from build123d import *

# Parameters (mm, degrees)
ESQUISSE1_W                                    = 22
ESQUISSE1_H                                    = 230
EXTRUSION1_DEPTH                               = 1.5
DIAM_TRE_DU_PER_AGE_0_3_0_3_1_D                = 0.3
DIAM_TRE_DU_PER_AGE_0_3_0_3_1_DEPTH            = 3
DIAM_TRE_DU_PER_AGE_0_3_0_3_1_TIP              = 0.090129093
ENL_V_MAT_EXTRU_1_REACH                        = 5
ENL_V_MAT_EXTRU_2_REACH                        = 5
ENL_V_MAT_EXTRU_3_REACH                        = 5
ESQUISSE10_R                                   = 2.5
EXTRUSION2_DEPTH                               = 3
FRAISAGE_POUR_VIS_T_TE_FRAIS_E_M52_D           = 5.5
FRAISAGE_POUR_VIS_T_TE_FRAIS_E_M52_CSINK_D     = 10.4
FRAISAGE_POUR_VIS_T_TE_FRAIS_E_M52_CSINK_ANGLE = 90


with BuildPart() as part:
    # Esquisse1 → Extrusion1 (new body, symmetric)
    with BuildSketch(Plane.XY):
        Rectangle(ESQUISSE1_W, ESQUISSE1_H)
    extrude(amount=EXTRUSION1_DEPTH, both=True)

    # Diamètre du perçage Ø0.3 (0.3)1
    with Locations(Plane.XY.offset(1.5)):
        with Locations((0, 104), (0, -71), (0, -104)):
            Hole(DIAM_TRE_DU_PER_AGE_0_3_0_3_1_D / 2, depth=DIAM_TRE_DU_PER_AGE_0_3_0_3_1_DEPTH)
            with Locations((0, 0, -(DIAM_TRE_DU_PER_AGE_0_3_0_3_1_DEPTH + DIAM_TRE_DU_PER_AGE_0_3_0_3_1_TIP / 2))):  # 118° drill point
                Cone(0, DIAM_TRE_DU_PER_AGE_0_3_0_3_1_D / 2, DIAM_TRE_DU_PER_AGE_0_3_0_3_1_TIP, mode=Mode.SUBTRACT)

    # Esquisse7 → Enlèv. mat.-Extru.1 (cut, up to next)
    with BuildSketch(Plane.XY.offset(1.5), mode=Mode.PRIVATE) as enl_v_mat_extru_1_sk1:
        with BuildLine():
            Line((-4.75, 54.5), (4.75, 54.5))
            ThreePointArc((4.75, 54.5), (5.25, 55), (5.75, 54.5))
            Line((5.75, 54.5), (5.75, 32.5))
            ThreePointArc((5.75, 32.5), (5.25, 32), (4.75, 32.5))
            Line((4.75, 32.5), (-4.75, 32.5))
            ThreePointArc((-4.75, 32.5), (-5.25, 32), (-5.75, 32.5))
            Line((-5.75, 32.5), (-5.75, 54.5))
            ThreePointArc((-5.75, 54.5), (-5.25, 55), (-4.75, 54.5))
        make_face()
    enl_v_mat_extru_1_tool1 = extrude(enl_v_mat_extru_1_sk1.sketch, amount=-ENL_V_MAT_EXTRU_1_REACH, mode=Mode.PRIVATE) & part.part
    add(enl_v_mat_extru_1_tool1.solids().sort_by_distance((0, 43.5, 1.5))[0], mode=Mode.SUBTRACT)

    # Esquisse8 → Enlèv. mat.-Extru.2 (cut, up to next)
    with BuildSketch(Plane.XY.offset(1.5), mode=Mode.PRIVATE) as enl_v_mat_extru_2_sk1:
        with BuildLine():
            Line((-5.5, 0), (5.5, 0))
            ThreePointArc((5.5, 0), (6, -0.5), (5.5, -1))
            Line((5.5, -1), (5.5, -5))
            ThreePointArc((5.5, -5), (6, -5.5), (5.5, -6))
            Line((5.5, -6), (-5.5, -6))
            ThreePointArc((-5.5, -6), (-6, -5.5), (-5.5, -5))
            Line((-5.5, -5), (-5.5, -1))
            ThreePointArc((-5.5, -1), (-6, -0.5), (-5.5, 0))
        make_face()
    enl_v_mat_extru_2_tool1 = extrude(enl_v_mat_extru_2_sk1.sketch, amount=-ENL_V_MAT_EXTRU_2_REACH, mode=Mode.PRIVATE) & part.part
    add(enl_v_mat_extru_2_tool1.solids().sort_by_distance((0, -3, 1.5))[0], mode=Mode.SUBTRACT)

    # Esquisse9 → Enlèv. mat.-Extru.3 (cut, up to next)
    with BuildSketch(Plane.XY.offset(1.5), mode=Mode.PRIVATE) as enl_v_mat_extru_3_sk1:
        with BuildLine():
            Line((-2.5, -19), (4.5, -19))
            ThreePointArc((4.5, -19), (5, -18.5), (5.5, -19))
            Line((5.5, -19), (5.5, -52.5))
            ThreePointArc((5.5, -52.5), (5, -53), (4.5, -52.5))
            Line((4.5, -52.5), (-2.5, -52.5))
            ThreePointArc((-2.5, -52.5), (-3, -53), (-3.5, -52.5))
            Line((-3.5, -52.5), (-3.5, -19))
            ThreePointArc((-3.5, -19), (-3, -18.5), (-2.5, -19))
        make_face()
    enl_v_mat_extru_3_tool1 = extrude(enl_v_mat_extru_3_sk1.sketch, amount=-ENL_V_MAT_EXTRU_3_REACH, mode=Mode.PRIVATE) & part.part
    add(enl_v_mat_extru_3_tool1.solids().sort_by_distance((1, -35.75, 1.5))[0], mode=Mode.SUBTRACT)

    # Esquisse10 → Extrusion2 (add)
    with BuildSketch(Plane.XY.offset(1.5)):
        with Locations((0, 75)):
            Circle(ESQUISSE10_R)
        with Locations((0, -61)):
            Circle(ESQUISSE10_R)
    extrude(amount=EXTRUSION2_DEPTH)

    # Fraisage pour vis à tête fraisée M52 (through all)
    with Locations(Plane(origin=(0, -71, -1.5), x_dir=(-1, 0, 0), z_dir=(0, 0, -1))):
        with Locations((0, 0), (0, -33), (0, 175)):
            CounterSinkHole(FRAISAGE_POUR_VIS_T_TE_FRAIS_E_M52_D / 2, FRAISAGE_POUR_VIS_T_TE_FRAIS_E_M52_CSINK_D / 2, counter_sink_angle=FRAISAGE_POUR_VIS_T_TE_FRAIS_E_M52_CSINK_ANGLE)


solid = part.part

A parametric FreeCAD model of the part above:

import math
import FreeCAD as App
import Part
import Sketcher
from FreeCAD import Vector
Q = App.Units.Quantity

doc = App.newDocument("Part")
params = doc.addObject("Spreadsheet::Sheet", "Params")
for row, (alias, value) in enumerate([
    ("sketch1_width", "22 mm"),
    ("sketch1_height", "230 mm"),
    ("pad1_length", "3 mm"),
    ("sketch2_diameter", "0.3 mm"),
    ("hole_diameter", "0.3 mm"),
    ("hole_depth", "3 mm"),
    ("sketch3_radius", "0.5 mm"),
    ("sketch3_height", "22 mm"),
    ("sketch3_width", "9.5 mm"),
    ("sketch4_radius", "0.5 mm"),
    ("sketch4_width", "11 mm"),
    ("sketch4_height", "4 mm"),
    ("sketch5_radius", "0.5 mm"),
    ("sketch5_width", "7 mm"),
    ("sketch5_height", "33.5 mm"),
    ("sketch6_diameter", "5 mm"),
    ("pad2_length", "3 mm"),
    ("sketch7_diameter", "5.5 mm"),
    ("hole2_diameter", "5.5 mm"),
    ("hole2_csink_diameter", "10.4 mm"),
], start=1):
    params.set(f"A{row}", alias)
    params.set(f"B{row}", "=" + value)
    params.setAlias(f"B{row}", alias)

body = doc.addObject("PartDesign::Body", "Body")

# Sketch on XY plane
sketch1 = body.newObject("Sketcher::SketchObject", "Sketch")
sketch1.AttachmentSupport = (doc.getObject("XY_Plane"), [""])
sketch1.MapMode = "FlatFace"
sketch1.addGeometry(Part.LineSegment(Vector(-11, 115, 0), Vector(-11, -115, 0)), False)
sketch1.addGeometry(Part.LineSegment(Vector(-11, -115, 0), Vector(11, -115, 0)), False)
sketch1.addGeometry(Part.LineSegment(Vector(11, -115, 0), Vector(11, 115, 0)), False)
sketch1.addGeometry(Part.LineSegment(Vector(11, 115, 0), Vector(-11, 115, 0)), False)
sketch1.addConstraint(Sketcher.Constraint("Coincident", 0, 2, 1, 1))
sketch1.addConstraint(Sketcher.Constraint("Coincident", 1, 2, 2, 1))
sketch1.addConstraint(Sketcher.Constraint("Coincident", 2, 2, 3, 1))
sketch1.addConstraint(Sketcher.Constraint("Coincident", 3, 2, 0, 1))
sketch1.addConstraint(Sketcher.Constraint("Vertical", 0))
sketch1.addConstraint(Sketcher.Constraint("Horizontal", 1))
sketch1.addConstraint(Sketcher.Constraint("Vertical", 2))
sketch1.addConstraint(Sketcher.Constraint("Horizontal", 3))
sketch1.addConstraint(Sketcher.Constraint("Symmetric", 0, 2, 2, 2, -1, 1))
sketch1.addConstraint(Sketcher.Constraint("DistanceX", 1, 1, 1, 2, Q("22 mm")))
sketch1.addConstraint(Sketcher.Constraint("DistanceY", 0, 2, 0, 1, Q("230 mm")))
sketch1.setExpression("Constraints[9]", "Params.sketch1_width")
sketch1.setExpression("Constraints[10]", "Params.sketch1_height")
pad1 = body.newObject("PartDesign::Pad", "Pad")
pad1.Profile = sketch1
pad1.setExpression("Length", "Params.pad1_length")
pad1.Midplane = True

# Sketch on XY plane
sketch2 = body.newObject("Sketcher::SketchObject", "Sketch001")
sketch2.AttachmentSupport = (doc.getObject("XY_Plane"), [""])
sketch2.MapMode = "FlatFace"
sketch2.AttachmentOffset = App.Placement(Vector(0, 0, 1.5), App.Rotation())
sketch2.addGeometry(Part.Circle(Vector(0, 104, 0), Vector(0, 0, 1), 0.15), False)
sketch2.addGeometry(Part.Circle(Vector(0, -71, 0), Vector(0, 0, 1), 0.15), False)
sketch2.addGeometry(Part.Circle(Vector(0, -104, 0), Vector(0, 0, 1), 0.15), False)
sketch2.addConstraint(Sketcher.Constraint("Equal", 0, 1))
sketch2.addConstraint(Sketcher.Constraint("Equal", 1, 2))
sketch2.addConstraint(Sketcher.Constraint("Symmetric", 0, 3, 2, 3, -1, 1))
sketch2.addConstraint(Sketcher.Constraint("PointOnObject", 0, 3, -2))
sketch2.addConstraint(Sketcher.Constraint("PointOnObject", 1, 3, -2))
sketch2.addConstraint(Sketcher.Constraint("Diameter", 0, Q("0.3 mm")))
sketch2.addConstraint(Sketcher.Constraint("DistanceY", -1, 1, 0, 3, Q("104 mm")))
sketch2.addConstraint(Sketcher.Constraint("DistanceY", 1, 3, -1, 1, Q("71 mm")))
sketch2.setExpression("Constraints[5]", "Params.sketch2_diameter")
doc.recompute()
hole = body.newObject("PartDesign::Hole", "Hole")
hole.Profile = sketch2
hole.ThreadType = "None"
hole.setExpression("Diameter", "Params.hole_diameter")
hole.DepthType = "Dimension"
hole.setExpression("Depth", "Params.hole_depth")
hole.DrillPoint = "Angled"
hole.DrillPointAngle = 118

# Sketch on XY plane
sketch3 = body.newObject("Sketcher::SketchObject", "Sketch002")
sketch3.AttachmentSupport = (doc.getObject("XY_Plane"), [""])
sketch3.MapMode = "FlatFace"
sketch3.AttachmentOffset = App.Placement(Vector(0, 0, 1.5), App.Rotation())
sketch3.addGeometry(Part.LineSegment(Vector(4.8, 54.5, 0), Vector(-4.8, 54.5, 0)), False)
sketch3.addGeometry(Part.ArcOfCircle(Part.Circle(Vector(-5.2, 54.5, 0), Vector(0, 0, 1), 0.5), math.radians(0), math.radians(180)), False)
sketch3.addGeometry(Part.LineSegment(Vector(-5.8, 54.5, 0), Vector(-5.8, 32.5, 0)), False)
sketch3.addGeometry(Part.ArcOfCircle(Part.Circle(Vector(-5.2, 32.5, 0), Vector(0, 0, 1), 0.5), math.radians(180), math.radians(360)), False)
sketch3.addGeometry(Part.LineSegment(Vector(-4.8, 32.5, 0), Vector(4.8, 32.5, 0)), False)
sketch3.addGeometry(Part.ArcOfCircle(Part.Circle(Vector(5.2, 32.5, 0), Vector(0, 0, 1), 0.5), math.radians(180), math.radians(360)), False)
sketch3.addGeometry(Part.LineSegment(Vector(5.8, 32.5, 0), Vector(5.8, 54.5, 0)), False)
sketch3.addGeometry(Part.ArcOfCircle(Part.Circle(Vector(5.2, 54.5, 0), Vector(0, 0, 1), 0.5), math.radians(0), math.radians(180)), False)
sketch3.addConstraint(Sketcher.Constraint("Coincident", 0, 2, 1, 1))
sketch3.addConstraint(Sketcher.Constraint("Tangent", 1, 2, 2, 1))
sketch3.addConstraint(Sketcher.Constraint("Tangent", 2, 2, 3, 1))
sketch3.addConstraint(Sketcher.Constraint("Coincident", 3, 2, 4, 1))
sketch3.addConstraint(Sketcher.Constraint("Coincident", 4, 2, 5, 1))
sketch3.addConstraint(Sketcher.Constraint("Tangent", 5, 2, 6, 1))
sketch3.addConstraint(Sketcher.Constraint("Tangent", 6, 2, 7, 1))
sketch3.addConstraint(Sketcher.Constraint("Coincident", 7, 2, 0, 1))
sketch3.addConstraint(Sketcher.Constraint("Horizontal", 0))
sketch3.addConstraint(Sketcher.Constraint("Vertical", 2))
sketch3.addConstraint(Sketcher.Constraint("Horizontal", 4))
sketch3.addConstraint(Sketcher.Constraint("Vertical", 6))
sketch3.addConstraint(Sketcher.Constraint("Equal", 1, 3))
sketch3.addConstraint(Sketcher.Constraint("Equal", 3, 5))
sketch3.addConstraint(Sketcher.Constraint("Equal", 5, 7))
sketch3.addConstraint(Sketcher.Constraint("Symmetric", 3, 3, 5, 3, -2))
sketch3.addConstraint(Sketcher.Constraint("Horizontal", 1, 3, 7, 3))
sketch3.addConstraint(Sketcher.Constraint("Horizontal", 7, 3, 0, 2))
sketch3.addConstraint(Sketcher.Constraint("Horizontal", 2, 2, 3, 2))
sketch3.addConstraint(Sketcher.Constraint("Radius", 1, Q("0.5 mm")))
sketch3.addConstraint(Sketcher.Constraint("DistanceY", 2, 2, 2, 1, Q("22 mm")))
sketch3.addConstraint(Sketcher.Constraint("DistanceX", 0, 2, 0, 1, Q("9.5 mm")))
sketch3.addConstraint(Sketcher.Constraint("DistanceY", -1, 1, 1, 3, Q("54.5 mm")))
sketch3.setExpression("Constraints[19]", "Params.sketch3_radius")
sketch3.setExpression("Constraints[20]", "Params.sketch3_height")
sketch3.setExpression("Constraints[21]", "Params.sketch3_width")
pocket1 = body.newObject("PartDesign::Pocket", "Pocket")
pocket1.Profile = sketch3
pocket1.Type = "UpToFirst"

# Sketch on XY plane
sketch4 = body.newObject("Sketcher::SketchObject", "Sketch003")
sketch4.AttachmentSupport = (doc.getObject("XY_Plane"), [""])
sketch4.MapMode = "FlatFace"
sketch4.AttachmentOffset = App.Placement(Vector(0, 0, 1.5), App.Rotation())
sketch4.addGeometry(Part.LineSegment(Vector(5.5, 0, 0), Vector(-5.5, 0, 0)), False)
sketch4.addGeometry(Part.ArcOfCircle(Part.Circle(Vector(-5.5, -0.5, 0), Vector(0, 0, 1), 0.5), math.radians(90), math.radians(270)), False)
sketch4.addGeometry(Part.LineSegment(Vector(-5.5, -1, 0), Vector(-5.5, -5, 0)), False)
sketch4.addGeometry(Part.ArcOfCircle(Part.Circle(Vector(-5.5, -5.5, 0), Vector(0, 0, 1), 0.5), math.radians(90), math.radians(270)), False)
sketch4.addGeometry(Part.LineSegment(Vector(-5.5, -6, 0), Vector(5.5, -6, 0)), False)
sketch4.addGeometry(Part.ArcOfCircle(Part.Circle(Vector(5.5, -5.5, 0), Vector(0, 0, 1), 0.5), math.radians(-90), math.radians(90)), False)
sketch4.addGeometry(Part.LineSegment(Vector(5.5, -5, 0), Vector(5.5, -1, 0)), False)
sketch4.addGeometry(Part.ArcOfCircle(Part.Circle(Vector(5.5, -0.5, 0), Vector(0, 0, 1), 0.5), math.radians(-90), math.radians(90)), False)
sketch4.addConstraint(Sketcher.Constraint("Tangent", 0, 2, 1, 1))
sketch4.addConstraint(Sketcher.Constraint("Coincident", 1, 2, 2, 1))
sketch4.addConstraint(Sketcher.Constraint("Coincident", 2, 2, 3, 1))
sketch4.addConstraint(Sketcher.Constraint("Tangent", 3, 2, 4, 1))
sketch4.addConstraint(Sketcher.Constraint("Tangent", 4, 2, 5, 1))
sketch4.addConstraint(Sketcher.Constraint("Coincident", 5, 2, 6, 1))
sketch4.addConstraint(Sketcher.Constraint("Coincident", 6, 2, 7, 1))
sketch4.addConstraint(Sketcher.Constraint("Tangent", 7, 2, 0, 1))
sketch4.addConstraint(Sketcher.Constraint("Horizontal", 0))
sketch4.addConstraint(Sketcher.Constraint("Vertical", 2))
sketch4.addConstraint(Sketcher.Constraint("Horizontal", 4))
sketch4.addConstraint(Sketcher.Constraint("Vertical", 6))
sketch4.addConstraint(Sketcher.Constraint("Equal", 1, 3))
sketch4.addConstraint(Sketcher.Constraint("Equal", 3, 5))
sketch4.addConstraint(Sketcher.Constraint("Equal", 5, 7))
sketch4.addConstraint(Sketcher.Constraint("Symmetric", 0, 2, 7, 2, -1, 1))
sketch4.addConstraint(Sketcher.Constraint("Vertical", 1, 3, 3, 3))
sketch4.addConstraint(Sketcher.Constraint("Vertical", 5, 3, 7, 3))
sketch4.addConstraint(Sketcher.Constraint("Vertical", 0, 2, 1, 2))
sketch4.addConstraint(Sketcher.Constraint("Vertical", 4, 2, 5, 2))
sketch4.addConstraint(Sketcher.Constraint("Radius", 1, Q("0.5 mm")))
sketch4.addConstraint(Sketcher.Constraint("DistanceX", 0, 2, 0, 1, Q("11 mm")))
sketch4.addConstraint(Sketcher.Constraint("DistanceY", 2, 2, 2, 1, Q("4 mm")))
sketch4.setExpression("Constraints[20]", "Params.sketch4_radius")
sketch4.setExpression("Constraints[21]", "Params.sketch4_width")
sketch4.setExpression("Constraints[22]", "Params.sketch4_height")
pocket2 = body.newObject("PartDesign::Pocket", "Pocket001")
pocket2.Profile = sketch4
pocket2.Type = "UpToFirst"

# Sketch on XY plane
sketch5 = body.newObject("Sketcher::SketchObject", "Sketch004")
sketch5.AttachmentSupport = (doc.getObject("XY_Plane"), [""])
sketch5.MapMode = "FlatFace"
sketch5.AttachmentOffset = App.Placement(Vector(0, 0, 1.5), App.Rotation())
sketch5.addGeometry(Part.LineSegment(Vector(4.5, -19, 0), Vector(-2.5, -19, 0)), False)
sketch5.addGeometry(Part.ArcOfCircle(Part.Circle(Vector(-3, -19, 0), Vector(0, 0, 1), 0.5), math.radians(0), math.radians(180)), False)
sketch5.addGeometry(Part.LineSegment(Vector(-3.5, -19, 0), Vector(-3.5, -52.5, 0)), False)
sketch5.addGeometry(Part.ArcOfCircle(Part.Circle(Vector(-3, -52.5, 0), Vector(0, 0, 1), 0.5), math.radians(180), math.radians(360)), False)
sketch5.addGeometry(Part.LineSegment(Vector(-2.5, -52.5, 0), Vector(4.5, -52.5, 0)), False)
sketch5.addGeometry(Part.ArcOfCircle(Part.Circle(Vector(5, -52.5, 0), Vector(0, 0, 1), 0.5), math.radians(180), math.radians(360)), False)
sketch5.addGeometry(Part.LineSegment(Vector(5.5, -52.5, 0), Vector(5.5, -19, 0)), False)
sketch5.addGeometry(Part.ArcOfCircle(Part.Circle(Vector(5, -19, 0), Vector(0, 0, 1), 0.5), math.radians(0), math.radians(180)), False)
sketch5.addConstraint(Sketcher.Constraint("Coincident", 0, 2, 1, 1))
sketch5.addConstraint(Sketcher.Constraint("Tangent", 1, 2, 2, 1))
sketch5.addConstraint(Sketcher.Constraint("Tangent", 2, 2, 3, 1))
sketch5.addConstraint(Sketcher.Constraint("Coincident", 3, 2, 4, 1))
sketch5.addConstraint(Sketcher.Constraint("Coincident", 4, 2, 5, 1))
sketch5.addConstraint(Sketcher.Constraint("Tangent", 5, 2, 6, 1))
sketch5.addConstraint(Sketcher.Constraint("Tangent", 6, 2, 7, 1))
sketch5.addConstraint(Sketcher.Constraint("Coincident", 7, 2, 0, 1))
sketch5.addConstraint(Sketcher.Constraint("Horizontal", 0))
sketch5.addConstraint(Sketcher.Constraint("Vertical", 2))
sketch5.addConstraint(Sketcher.Constraint("Horizontal", 4))
sketch5.addConstraint(Sketcher.Constraint("Vertical", 6))
sketch5.addConstraint(Sketcher.Constraint("Equal", 1, 3))
sketch5.addConstraint(Sketcher.Constraint("Equal", 3, 5))
sketch5.addConstraint(Sketcher.Constraint("Equal", 5, 7))
sketch5.addConstraint(Sketcher.Constraint("Horizontal", 3, 3, 5, 3))
sketch5.addConstraint(Sketcher.Constraint("Horizontal", 1, 3, 7, 3))
sketch5.addConstraint(Sketcher.Constraint("Horizontal", 7, 3, 0, 2))
sketch5.addConstraint(Sketcher.Constraint("Horizontal", 2, 2, 3, 2))
sketch5.addConstraint(Sketcher.Constraint("Radius", 1, Q("0.5 mm")))
sketch5.addConstraint(Sketcher.Constraint("DistanceX", 0, 2, 0, 1, Q("7 mm")))
sketch5.addConstraint(Sketcher.Constraint("DistanceY", 2, 2, 2, 1, Q("33.5 mm")))
sketch5.addConstraint(Sketcher.Constraint("DistanceX", 1, 3, -1, 1, Q("3 mm")))
sketch5.addConstraint(Sketcher.Constraint("DistanceY", 1, 3, -1, 1, Q("19 mm")))
sketch5.setExpression("Constraints[19]", "Params.sketch5_radius")
sketch5.setExpression("Constraints[20]", "Params.sketch5_width")
sketch5.setExpression("Constraints[21]", "Params.sketch5_height")
pocket3 = body.newObject("PartDesign::Pocket", "Pocket002")
pocket3.Profile = sketch5
pocket3.Type = "UpToFirst"

# Sketch on XY plane
sketch6 = body.newObject("Sketcher::SketchObject", "Sketch005")
sketch6.AttachmentSupport = (doc.getObject("XY_Plane"), [""])
sketch6.MapMode = "FlatFace"
sketch6.AttachmentOffset = App.Placement(Vector(0, 0, 1.5), App.Rotation())
sketch6.addGeometry(Part.Circle(Vector(0, 75, 0), Vector(0, 0, 1), 2.5), False)
sketch6.addGeometry(Part.Circle(Vector(0, -61, 0), Vector(0, 0, 1), 2.5), False)
sketch6.addConstraint(Sketcher.Constraint("Equal", 0, 1))
sketch6.addConstraint(Sketcher.Constraint("PointOnObject", 0, 3, -2))
sketch6.addConstraint(Sketcher.Constraint("PointOnObject", 1, 3, -2))
sketch6.addConstraint(Sketcher.Constraint("Diameter", 0, Q("5 mm")))
sketch6.addConstraint(Sketcher.Constraint("DistanceY", -1, 1, 0, 3, Q("75 mm")))
sketch6.addConstraint(Sketcher.Constraint("DistanceY", 1, 3, -1, 1, Q("61 mm")))
sketch6.setExpression("Constraints[3]", "Params.sketch6_diameter")
pad2 = body.newObject("PartDesign::Pad", "Pad001")
pad2.Profile = sketch6
pad2.setExpression("Length", "Params.pad2_length")

# Sketch on XY plane
sketch7 = body.newObject("Sketcher::SketchObject", "Sketch006")
sketch7.AttachmentSupport = (doc.getObject("XY_Plane"), [""])
sketch7.MapMode = "FlatFace"
sketch7.AttachmentOffset = App.Placement(Vector(0, 0, -1.5), App.Rotation())
sketch7.addGeometry(Part.Circle(Vector(0, -71, 0), Vector(0, 0, 1), 2.8), False)
sketch7.addGeometry(Part.Circle(Vector(0, -104, 0), Vector(0, 0, 1), 2.8), False)
sketch7.addGeometry(Part.Circle(Vector(0, 104, 0), Vector(0, 0, 1), 2.8), False)
sketch7.addConstraint(Sketcher.Constraint("Equal", 0, 1))
sketch7.addConstraint(Sketcher.Constraint("Equal", 1, 2))
sketch7.addConstraint(Sketcher.Constraint("Symmetric", 1, 3, 2, 3, -1, 1))
sketch7.addConstraint(Sketcher.Constraint("PointOnObject", 0, 3, -2))
sketch7.addConstraint(Sketcher.Constraint("PointOnObject", 1, 3, -2))
sketch7.addConstraint(Sketcher.Constraint("Diameter", 0, Q("5.5 mm")))
sketch7.addConstraint(Sketcher.Constraint("DistanceY", 0, 3, -1, 1, Q("71 mm")))
sketch7.addConstraint(Sketcher.Constraint("DistanceY", 1, 3, -1, 1, Q("104 mm")))
sketch7.setExpression("Constraints[5]", "Params.sketch7_diameter")
doc.recompute()
hole2 = body.newObject("PartDesign::Hole", "Hole001")
hole2.Profile = sketch7
hole2.ThreadType = "None"
hole2.setExpression("Diameter", "Params.hole2_diameter")
hole2.DepthType = "ThroughAll"
hole2.HoleCutType = "Countersink"
hole2.setExpression("HoleCutDiameter", "Params.hole2_csink_diameter")
hole2.HoleCutCountersinkAngle = 90
hole2.Reversed = True

doc.recompute()
